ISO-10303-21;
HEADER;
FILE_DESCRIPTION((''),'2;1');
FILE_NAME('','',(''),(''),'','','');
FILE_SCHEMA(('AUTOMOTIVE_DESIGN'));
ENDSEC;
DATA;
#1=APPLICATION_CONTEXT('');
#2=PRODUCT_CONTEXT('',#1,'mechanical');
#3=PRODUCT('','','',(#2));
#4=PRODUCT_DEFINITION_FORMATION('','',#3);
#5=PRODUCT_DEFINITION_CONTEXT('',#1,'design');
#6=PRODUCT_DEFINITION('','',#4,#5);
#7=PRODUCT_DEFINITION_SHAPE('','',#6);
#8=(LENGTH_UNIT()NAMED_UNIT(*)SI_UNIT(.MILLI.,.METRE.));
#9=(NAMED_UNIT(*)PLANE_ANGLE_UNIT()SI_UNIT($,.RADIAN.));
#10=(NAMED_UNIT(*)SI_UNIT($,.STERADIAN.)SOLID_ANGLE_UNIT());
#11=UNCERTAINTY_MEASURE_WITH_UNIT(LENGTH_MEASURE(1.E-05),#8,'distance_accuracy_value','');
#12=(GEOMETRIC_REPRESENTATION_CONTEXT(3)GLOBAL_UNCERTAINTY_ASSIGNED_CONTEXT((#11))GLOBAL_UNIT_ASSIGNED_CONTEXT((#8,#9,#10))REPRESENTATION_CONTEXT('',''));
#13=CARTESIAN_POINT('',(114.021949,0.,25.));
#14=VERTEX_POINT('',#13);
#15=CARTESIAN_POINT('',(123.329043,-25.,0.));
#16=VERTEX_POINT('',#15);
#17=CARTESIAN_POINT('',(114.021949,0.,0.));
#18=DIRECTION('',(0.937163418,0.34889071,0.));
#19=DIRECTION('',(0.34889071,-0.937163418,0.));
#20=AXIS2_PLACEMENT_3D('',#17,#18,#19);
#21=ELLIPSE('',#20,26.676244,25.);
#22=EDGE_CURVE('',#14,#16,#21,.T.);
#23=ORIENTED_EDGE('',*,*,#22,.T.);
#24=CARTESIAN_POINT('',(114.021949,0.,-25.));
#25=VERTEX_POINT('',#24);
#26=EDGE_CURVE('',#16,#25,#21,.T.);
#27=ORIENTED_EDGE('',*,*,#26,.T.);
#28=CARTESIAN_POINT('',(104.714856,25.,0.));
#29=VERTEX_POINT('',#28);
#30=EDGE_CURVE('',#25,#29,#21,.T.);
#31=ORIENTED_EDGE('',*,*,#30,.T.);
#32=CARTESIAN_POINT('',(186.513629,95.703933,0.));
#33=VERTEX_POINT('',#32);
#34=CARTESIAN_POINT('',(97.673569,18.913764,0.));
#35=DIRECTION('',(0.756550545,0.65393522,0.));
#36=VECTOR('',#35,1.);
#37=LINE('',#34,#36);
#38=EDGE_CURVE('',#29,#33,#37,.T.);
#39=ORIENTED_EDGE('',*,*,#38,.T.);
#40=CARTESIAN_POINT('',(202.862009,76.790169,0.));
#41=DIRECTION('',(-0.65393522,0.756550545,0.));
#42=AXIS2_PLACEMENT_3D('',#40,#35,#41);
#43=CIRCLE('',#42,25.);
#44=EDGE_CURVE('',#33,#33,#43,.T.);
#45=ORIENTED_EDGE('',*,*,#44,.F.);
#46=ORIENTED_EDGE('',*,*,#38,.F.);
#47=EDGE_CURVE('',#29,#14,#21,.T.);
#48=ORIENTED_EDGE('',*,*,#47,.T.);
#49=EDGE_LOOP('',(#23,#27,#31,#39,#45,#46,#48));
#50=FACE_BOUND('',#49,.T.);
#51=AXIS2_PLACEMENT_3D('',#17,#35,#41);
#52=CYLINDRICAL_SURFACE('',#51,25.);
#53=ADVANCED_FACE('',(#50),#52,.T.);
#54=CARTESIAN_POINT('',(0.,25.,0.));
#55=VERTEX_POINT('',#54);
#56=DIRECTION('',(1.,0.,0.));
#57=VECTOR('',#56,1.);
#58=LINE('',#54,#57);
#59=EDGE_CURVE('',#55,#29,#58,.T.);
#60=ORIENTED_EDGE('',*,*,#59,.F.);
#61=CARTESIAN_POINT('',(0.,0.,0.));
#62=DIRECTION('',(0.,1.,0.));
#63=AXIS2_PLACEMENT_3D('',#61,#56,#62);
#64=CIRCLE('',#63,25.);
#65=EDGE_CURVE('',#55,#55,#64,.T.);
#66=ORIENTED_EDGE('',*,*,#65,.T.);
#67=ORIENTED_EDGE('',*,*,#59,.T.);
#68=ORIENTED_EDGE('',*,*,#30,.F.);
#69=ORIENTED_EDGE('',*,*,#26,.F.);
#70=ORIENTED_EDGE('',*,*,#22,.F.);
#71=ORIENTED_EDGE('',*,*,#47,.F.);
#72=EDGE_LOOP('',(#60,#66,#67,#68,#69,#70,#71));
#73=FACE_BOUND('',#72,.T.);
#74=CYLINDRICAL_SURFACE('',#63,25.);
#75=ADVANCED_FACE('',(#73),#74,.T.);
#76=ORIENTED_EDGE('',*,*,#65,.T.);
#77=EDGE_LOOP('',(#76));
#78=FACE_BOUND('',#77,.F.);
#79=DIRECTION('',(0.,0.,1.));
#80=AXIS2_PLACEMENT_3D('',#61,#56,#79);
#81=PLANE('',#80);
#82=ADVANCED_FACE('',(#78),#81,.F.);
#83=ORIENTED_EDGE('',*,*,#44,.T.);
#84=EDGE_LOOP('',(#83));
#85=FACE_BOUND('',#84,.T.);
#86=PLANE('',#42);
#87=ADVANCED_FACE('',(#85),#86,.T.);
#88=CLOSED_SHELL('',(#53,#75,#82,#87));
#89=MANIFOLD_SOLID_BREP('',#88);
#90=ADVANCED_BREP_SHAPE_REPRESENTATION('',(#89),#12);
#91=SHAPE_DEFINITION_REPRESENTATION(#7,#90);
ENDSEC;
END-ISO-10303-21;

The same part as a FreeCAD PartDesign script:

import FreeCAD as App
import Part
import Sketcher
Q = App.Units.Quantity

doc = App.newDocument("Part")
body = doc.addObject("PartDesign::Body", "Body")

# Sketch on YZ plane
sketch1 = body.newObject("Sketcher::SketchObject", "Sketch")
sketch1.AttachmentSupport = (doc.getObject("YZ_Plane"), [""])
sketch1.MapMode = "FlatFace"
sketch1.addGeometry(Part.Circle(App.Vector(0, 0, 0), App.Vector(0, 0, 1), 25), False)
sketch1.addConstraint(Sketcher.Constraint("Coincident", 0, 3, -1, 1))
sketch1.addConstraint(Sketcher.Constraint("Diameter", 0, Q("50 mm")))

# Sketch on XY plane
sketch2 = body.newObject("Sketcher::SketchObject", "Sketch001")
sketch2.AttachmentSupport = (doc.getObject("XY_Plane"), [""])
sketch2.MapMode = "FlatFace"
sketch2.addGeometry(Part.LineSegment(App.Vector(0, 0, 0), App.Vector(114.021949, 0, 0)), False)
sketch2.addGeometry(Part.LineSegment(App.Vector(114.021949, 0, 0), App.Vector(202.862009, 76.790169, 0)), False)
sketch2.addConstraint(Sketcher.Constraint("Coincident", 0, 2, 1, 1))
sketch2.addConstraint(Sketcher.Constraint("Horizontal", 0))
sketch2.addConstraint(Sketcher.Constraint("Coincident", 0, 1, -1, 1))
sketch2.addConstraint(Sketcher.Constraint("DistanceX", 0, 1, 0, 2, Q("114.021949 mm")))
sketch2.addConstraint(Sketcher.Constraint("Distance", 1, Q("117.427792 mm")))
sketch2.addConstraint(Sketcher.Constraint("DistanceX", -1, 1, 1, 2, Q("202.862009 mm")))
doc.recompute()

additivepipe = body.newObject("PartDesign::AdditivePipe", "AdditivePipe")
additivepipe.Profile = sketch1
additivepipe.Spine = (sketch2, ["Edge1", "Edge2"])
additivepipe.Transition = "Right corner"

doc.recompute()
